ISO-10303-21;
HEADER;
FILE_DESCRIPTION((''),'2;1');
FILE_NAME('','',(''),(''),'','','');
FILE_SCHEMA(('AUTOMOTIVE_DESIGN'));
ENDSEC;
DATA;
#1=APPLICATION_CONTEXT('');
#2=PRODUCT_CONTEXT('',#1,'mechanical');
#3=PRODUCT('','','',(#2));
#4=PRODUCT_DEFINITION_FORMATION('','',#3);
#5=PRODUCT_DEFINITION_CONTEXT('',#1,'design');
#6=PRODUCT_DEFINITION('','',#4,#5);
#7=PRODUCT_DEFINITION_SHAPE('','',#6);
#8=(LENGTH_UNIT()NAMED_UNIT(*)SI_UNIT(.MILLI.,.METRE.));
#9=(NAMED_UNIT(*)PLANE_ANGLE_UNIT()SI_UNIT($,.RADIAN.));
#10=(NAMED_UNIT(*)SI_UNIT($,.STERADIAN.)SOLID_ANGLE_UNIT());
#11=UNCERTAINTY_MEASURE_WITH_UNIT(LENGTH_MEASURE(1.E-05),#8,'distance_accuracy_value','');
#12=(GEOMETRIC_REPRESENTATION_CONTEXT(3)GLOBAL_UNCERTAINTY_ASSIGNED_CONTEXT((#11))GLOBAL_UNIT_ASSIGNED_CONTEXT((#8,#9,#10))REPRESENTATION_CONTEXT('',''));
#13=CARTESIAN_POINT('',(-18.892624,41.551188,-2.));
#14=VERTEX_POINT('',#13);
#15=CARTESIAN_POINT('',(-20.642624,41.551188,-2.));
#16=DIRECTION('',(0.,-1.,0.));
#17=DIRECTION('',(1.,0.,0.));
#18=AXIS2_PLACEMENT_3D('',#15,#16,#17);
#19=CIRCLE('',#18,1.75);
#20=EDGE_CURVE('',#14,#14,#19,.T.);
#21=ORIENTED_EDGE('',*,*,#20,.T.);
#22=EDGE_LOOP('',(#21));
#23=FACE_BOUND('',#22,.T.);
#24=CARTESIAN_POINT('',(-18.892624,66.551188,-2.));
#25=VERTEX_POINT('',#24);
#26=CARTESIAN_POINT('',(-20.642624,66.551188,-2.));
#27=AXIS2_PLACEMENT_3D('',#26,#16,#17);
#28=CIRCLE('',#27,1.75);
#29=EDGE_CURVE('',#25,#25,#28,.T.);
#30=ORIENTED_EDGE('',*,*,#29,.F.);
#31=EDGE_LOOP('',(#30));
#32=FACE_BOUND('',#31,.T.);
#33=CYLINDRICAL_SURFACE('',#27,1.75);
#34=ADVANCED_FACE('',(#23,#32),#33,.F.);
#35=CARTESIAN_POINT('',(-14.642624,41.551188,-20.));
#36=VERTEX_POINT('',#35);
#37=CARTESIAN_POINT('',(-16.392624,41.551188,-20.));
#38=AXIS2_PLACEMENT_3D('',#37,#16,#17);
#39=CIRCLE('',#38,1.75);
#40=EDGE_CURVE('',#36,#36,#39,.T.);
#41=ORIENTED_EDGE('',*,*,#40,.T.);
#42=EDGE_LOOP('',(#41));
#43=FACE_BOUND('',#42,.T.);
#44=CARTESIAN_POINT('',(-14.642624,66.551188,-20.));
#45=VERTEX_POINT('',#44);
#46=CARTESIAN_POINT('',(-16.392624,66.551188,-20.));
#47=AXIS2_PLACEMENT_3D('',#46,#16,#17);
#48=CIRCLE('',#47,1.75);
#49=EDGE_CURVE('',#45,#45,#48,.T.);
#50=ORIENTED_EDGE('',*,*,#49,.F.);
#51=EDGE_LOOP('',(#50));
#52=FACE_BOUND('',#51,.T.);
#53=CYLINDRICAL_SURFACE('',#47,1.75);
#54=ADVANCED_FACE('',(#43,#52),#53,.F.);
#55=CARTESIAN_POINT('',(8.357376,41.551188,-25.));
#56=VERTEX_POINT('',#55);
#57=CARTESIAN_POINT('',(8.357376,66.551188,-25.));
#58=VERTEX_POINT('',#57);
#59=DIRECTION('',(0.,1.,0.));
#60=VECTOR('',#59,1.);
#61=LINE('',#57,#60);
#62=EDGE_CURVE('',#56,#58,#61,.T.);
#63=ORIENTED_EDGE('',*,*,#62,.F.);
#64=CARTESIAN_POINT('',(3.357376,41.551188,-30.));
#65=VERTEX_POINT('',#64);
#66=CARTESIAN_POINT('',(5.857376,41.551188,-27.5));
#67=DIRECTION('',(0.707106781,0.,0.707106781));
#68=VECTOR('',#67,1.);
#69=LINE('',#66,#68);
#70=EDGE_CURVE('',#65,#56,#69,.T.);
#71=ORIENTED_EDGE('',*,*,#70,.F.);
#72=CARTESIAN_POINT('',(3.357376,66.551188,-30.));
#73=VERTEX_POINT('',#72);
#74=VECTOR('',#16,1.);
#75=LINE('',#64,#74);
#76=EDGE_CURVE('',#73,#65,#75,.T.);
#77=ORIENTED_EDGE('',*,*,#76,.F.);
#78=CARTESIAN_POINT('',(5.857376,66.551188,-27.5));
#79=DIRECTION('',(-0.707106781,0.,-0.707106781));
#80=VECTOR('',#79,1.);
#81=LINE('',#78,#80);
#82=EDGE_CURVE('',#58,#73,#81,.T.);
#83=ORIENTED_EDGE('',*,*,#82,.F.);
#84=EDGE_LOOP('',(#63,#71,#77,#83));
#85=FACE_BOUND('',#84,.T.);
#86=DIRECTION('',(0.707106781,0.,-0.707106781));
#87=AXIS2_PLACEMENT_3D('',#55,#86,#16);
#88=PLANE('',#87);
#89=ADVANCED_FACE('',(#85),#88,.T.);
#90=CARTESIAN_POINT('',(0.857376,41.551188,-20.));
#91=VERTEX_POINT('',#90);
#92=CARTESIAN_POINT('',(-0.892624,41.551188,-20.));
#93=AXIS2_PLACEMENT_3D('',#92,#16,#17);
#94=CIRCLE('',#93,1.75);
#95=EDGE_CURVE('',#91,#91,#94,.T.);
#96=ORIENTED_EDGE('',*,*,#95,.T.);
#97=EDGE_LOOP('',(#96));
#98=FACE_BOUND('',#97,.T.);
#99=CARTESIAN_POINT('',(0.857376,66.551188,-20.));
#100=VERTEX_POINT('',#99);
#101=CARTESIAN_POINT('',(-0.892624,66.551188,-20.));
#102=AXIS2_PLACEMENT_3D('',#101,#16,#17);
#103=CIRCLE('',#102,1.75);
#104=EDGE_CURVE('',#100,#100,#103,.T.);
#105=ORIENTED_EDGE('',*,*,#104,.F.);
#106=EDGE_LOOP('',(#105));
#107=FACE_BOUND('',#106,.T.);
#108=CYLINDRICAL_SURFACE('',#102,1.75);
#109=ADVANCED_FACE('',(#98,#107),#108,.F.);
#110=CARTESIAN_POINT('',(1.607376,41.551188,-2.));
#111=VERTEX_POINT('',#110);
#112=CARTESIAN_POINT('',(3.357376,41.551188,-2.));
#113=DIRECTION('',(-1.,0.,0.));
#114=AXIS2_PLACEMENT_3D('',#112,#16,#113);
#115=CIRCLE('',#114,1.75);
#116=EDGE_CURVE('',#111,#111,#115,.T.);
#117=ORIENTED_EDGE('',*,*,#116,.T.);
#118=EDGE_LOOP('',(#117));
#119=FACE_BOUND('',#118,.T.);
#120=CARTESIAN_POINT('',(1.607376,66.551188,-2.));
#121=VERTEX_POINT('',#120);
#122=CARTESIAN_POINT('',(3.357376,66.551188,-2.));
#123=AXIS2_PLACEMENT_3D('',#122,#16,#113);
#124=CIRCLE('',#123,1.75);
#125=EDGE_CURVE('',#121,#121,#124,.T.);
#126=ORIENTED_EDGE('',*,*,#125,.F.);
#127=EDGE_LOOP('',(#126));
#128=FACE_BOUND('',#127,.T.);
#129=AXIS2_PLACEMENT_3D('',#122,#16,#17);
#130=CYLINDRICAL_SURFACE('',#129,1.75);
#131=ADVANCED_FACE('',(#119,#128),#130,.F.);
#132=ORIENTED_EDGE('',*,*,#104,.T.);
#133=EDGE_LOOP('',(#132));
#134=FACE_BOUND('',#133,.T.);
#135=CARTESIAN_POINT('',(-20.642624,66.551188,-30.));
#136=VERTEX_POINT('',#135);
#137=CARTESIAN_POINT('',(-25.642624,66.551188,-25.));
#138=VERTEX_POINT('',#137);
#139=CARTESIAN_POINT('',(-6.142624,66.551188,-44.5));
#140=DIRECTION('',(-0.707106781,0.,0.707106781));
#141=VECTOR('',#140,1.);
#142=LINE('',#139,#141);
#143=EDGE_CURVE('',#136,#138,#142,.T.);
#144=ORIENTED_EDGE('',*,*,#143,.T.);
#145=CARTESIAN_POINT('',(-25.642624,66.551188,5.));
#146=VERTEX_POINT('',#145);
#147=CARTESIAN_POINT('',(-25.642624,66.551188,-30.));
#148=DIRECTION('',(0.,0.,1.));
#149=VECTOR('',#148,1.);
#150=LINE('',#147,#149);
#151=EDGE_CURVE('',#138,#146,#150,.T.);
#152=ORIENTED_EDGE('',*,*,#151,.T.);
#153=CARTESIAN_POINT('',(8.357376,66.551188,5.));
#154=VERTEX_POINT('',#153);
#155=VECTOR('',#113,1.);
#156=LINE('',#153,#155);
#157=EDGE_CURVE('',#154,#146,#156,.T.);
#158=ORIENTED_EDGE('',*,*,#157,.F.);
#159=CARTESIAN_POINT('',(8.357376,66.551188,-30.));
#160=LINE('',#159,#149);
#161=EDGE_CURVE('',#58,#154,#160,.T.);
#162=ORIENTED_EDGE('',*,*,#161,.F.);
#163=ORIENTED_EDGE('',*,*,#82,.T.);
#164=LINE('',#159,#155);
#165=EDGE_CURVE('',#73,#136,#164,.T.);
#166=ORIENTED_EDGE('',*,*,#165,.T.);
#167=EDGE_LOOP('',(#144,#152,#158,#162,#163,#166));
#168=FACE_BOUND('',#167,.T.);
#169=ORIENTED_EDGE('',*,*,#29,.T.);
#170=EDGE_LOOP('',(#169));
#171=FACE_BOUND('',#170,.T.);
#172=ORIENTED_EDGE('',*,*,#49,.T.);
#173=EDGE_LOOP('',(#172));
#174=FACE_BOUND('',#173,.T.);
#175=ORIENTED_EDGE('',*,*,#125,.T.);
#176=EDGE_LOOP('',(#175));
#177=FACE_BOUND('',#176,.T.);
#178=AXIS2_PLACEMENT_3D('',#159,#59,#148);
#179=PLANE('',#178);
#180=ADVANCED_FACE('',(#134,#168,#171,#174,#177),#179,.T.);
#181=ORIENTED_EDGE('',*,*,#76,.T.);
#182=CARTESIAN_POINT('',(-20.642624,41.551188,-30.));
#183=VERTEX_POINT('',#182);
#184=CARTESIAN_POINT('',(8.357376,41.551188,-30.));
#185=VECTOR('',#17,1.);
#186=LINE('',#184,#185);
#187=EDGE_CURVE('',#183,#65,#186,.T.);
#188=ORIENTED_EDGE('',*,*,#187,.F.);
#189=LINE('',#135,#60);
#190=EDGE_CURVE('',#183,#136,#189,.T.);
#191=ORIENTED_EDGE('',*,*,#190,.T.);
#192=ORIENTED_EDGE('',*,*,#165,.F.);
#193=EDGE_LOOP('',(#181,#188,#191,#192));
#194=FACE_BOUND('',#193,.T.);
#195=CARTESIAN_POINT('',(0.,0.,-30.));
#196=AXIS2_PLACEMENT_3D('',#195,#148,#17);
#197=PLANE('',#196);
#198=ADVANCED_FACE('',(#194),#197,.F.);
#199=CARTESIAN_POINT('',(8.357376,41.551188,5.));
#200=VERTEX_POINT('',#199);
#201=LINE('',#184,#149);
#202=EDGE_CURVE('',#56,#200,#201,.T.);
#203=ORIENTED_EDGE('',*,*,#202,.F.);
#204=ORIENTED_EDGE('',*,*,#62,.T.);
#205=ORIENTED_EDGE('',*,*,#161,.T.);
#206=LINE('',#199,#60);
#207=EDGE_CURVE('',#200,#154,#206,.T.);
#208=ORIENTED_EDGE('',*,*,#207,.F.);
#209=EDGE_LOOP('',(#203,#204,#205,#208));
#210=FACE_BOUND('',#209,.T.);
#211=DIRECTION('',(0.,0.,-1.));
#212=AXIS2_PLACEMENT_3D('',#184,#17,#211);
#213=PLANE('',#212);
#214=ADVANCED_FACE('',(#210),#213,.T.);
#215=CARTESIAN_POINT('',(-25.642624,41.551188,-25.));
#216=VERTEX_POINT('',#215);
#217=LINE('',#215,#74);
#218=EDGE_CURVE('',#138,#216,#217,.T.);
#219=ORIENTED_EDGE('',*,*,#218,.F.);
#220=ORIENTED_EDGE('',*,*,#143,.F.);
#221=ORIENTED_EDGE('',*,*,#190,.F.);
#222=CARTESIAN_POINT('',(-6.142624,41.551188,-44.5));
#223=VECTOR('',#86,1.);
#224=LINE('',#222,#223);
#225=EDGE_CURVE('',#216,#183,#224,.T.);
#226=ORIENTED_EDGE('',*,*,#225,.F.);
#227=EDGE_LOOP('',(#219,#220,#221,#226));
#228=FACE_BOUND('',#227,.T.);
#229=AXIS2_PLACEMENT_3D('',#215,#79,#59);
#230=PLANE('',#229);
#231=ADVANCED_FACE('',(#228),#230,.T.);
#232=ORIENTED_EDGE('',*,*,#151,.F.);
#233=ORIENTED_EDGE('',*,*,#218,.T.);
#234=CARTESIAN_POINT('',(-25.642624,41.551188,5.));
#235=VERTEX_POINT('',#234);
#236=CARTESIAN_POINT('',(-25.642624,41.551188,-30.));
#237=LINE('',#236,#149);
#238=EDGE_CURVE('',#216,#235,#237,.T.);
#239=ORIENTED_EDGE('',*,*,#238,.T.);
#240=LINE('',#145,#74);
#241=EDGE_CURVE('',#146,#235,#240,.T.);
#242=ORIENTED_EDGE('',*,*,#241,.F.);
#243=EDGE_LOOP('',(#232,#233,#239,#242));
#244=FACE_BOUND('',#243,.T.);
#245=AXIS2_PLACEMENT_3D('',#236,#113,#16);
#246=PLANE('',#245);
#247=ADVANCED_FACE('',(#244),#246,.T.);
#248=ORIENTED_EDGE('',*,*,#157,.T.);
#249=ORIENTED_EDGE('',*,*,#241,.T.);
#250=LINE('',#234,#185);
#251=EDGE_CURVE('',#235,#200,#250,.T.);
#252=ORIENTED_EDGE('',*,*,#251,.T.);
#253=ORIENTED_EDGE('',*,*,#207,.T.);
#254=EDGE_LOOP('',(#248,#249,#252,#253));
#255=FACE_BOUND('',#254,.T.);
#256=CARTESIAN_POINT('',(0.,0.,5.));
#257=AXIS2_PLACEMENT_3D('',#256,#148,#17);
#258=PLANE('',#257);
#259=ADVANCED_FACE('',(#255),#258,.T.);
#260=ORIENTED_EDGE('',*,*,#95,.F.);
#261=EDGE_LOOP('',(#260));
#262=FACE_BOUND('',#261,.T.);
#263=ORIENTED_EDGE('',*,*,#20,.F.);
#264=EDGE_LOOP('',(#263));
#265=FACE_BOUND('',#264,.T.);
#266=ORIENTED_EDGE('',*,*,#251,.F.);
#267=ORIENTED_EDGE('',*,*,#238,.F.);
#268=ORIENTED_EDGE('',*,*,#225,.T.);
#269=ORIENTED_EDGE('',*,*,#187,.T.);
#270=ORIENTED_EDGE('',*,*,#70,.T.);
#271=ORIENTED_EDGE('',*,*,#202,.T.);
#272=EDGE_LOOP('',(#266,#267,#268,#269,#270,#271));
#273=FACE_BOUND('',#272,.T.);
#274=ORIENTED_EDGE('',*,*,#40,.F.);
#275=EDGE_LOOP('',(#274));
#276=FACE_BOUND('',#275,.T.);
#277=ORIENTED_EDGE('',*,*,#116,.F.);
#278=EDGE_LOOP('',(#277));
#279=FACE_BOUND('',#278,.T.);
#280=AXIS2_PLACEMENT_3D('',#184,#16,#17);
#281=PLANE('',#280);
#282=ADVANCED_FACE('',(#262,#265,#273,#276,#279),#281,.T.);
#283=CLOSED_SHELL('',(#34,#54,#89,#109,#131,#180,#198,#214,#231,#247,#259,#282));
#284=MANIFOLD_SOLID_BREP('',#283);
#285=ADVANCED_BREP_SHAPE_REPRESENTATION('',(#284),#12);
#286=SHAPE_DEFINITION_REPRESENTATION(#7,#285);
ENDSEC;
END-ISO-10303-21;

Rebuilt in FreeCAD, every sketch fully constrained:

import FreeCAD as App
import Part
import Sketcher
from FreeCAD import Vector


def edges_at(feature, points):
    """Names of the edges that pass closest to the given points."""
    edges = feature.Shape.Edges
    near = lambda p: min(range(len(edges)), key=lambda i: edges[i].distToShape(Part.Vertex(*p))[0])
    return sorted({f"Edge{near(p) + 1}" for p in points})


def add_polygon(sketch, points):
    """Adds a closed chain of lines whose ends are joined by coincident constraints."""
    first, n = sketch.GeometryCount, len(points)
    for a, b in zip(points, points[1:] + points[:1]):
        sketch.addGeometry(Part.LineSegment(App.Vector(*a, 0), App.Vector(*b, 0)), False)
    for i in range(n):
        sketch.addConstraint(Sketcher.Constraint("Coincident", first + i, 2, first + (i + 1) % n, 1))

doc = App.newDocument("Part")
body = doc.addObject("PartDesign::Body", "Body")

sketch1 = body.newObject("Sketcher::SketchObject", "Sketch")
sketch1.AttachmentSupport = (doc.getObject("XY_Plane"), [""])
sketch1.MapMode = "FlatFace"
add_polygon(sketch1, [(-26, 67), (-26, 42), (8, 42), (8, 67)])
sketch1.addConstraint([
    Sketcher.Constraint("Vertical", 0),
    Sketcher.Constraint("Horizontal", 1),
    Sketcher.Constraint("Vertical", 2),
    Sketcher.Constraint("Horizontal", 3),
    Sketcher.Constraint("DistanceX", 1, 1, 1, 2, 34.0),
    Sketcher.Constraint("DistanceY", 0, 2, 0, 1, 25.0),
    Sketcher.Constraint("DistanceY", -1, 1, 0, 2, 41.551188),
    Sketcher.Constraint("DistanceX", 0, 2, -1, 1, 25.642624),
])
pad1 = body.newObject("PartDesign::Pad", "Pad")
pad1.Profile = sketch1
pad1.Length = 30
pad1.Reversed = True

sketch2 = body.newObject("Sketcher::SketchObject", "Sketch001")
sketch2.AttachmentSupport = (doc.getObject("XY_Plane"), [""])
sketch2.MapMode = "FlatFace"
add_polygon(sketch2, [(-26, 67), (-26, 42), (8, 42), (8, 67)])
sketch2.addConstraint([
    Sketcher.Constraint("Vertical", 0),
    Sketcher.Constraint("Horizontal", 1),
    Sketcher.Constraint("Vertical", 2),
    Sketcher.Constraint("Horizontal", 3),
    Sketcher.Constraint("DistanceX", 1, 1, 1, 2, 34.0),
    Sketcher.Constraint("DistanceY", 0, 2, 0, 1, 25.0),
    Sketcher.Constraint("DistanceY", -1, 1, 0, 2, 41.551188),
    Sketcher.Constraint("DistanceX", 0, 2, -1, 1, 25.642624),
])
pad2 = body.newObject("PartDesign::Pad", "Pad001")
pad2.Profile = sketch2
pad2.Length = 5
doc.recompute()

chamfer = body.newObject("PartDesign::Chamfer", "Chamfer")
chamfer.Base = (pad2, edges_at(pad2, [(8.357, 54.051, -30), (-25.643, 54.051, -30)]))
chamfer.Size = 5

sketch3 = body.newObject("Sketcher::SketchObject", "Sketch002")
sketch3.AttachmentSupport = (doc.getObject("XZ_Plane"), [""])
sketch3.MapMode = "FlatFace"
sketch3.AttachmentOffset = App.Placement(Vector(0, 0, -41.551188), App.Rotation())
sketch3.addGeometry([
    Part.Circle(Vector(-16.4, -20, 0), Vector(0, 0, 1), 1.8),
    Part.Circle(Vector(-0.9, -20, 0), Vector(0, 0, 1), 1.8),
    Part.Circle(Vector(-20.6, -2, 0), Vector(0, 0, 1), 1.8),
    Part.Circle(Vector(3.4, -2, 0), Vector(0, 0, 1), 1.8),
], False)
sketch3.addConstraint([
    Sketcher.Constraint("Equal", 0, 1),
    Sketcher.Constraint("Equal", 1, 2),
    Sketcher.Constraint("Equal", 2, 3),
    Sketcher.Constraint("Horizontal", 0, 3, 1, 3),
    Sketcher.Constraint("Horizontal", 2, 3, 3, 3),
    Sketcher.Constraint("Diameter", 0, 3.5),
    Sketcher.Constraint("DistanceY", 0, 3, -1, 1, 20.0),
    Sketcher.Constraint("DistanceY", 2, 3, -1, 1, 2.0),
    Sketcher.Constraint("DistanceX", 2, 3, 3, 3, 24.0),
    Sketcher.Constraint("DistanceX", 0, 3, 1, 3, 15.5),
    Sketcher.Constraint("DistanceX", 2, 3, 0, 3, 4.25),
    Sketcher.Constraint("DistanceX", 0, 3, -1, 1, 16.392624),
])
pocket1 = body.newObject("PartDesign::Pocket", "Pocket")
pocket1.Profile = sketch3
pocket1.Type = "ThroughAll"

doc.recompute()
